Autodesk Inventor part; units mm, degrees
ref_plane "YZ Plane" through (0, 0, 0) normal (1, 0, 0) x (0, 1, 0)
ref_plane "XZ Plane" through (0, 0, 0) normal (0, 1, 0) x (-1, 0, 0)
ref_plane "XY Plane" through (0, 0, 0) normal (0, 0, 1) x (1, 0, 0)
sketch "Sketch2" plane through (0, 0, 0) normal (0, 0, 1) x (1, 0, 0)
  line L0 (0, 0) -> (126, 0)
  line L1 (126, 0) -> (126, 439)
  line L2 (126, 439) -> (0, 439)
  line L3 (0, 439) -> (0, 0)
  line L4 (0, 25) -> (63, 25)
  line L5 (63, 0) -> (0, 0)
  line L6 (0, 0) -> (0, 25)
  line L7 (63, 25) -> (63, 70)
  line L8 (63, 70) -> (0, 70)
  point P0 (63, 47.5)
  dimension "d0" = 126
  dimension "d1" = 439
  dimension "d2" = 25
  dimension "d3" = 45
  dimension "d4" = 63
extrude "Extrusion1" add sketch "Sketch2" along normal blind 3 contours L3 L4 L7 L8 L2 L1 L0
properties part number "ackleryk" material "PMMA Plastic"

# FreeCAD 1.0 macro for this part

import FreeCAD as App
import Part
import Sketcher
Q = App.Units.Quantity

doc = App.newDocument("Part")
body = doc.addObject("PartDesign::Body", "Body")

# Sketch on XY plane
sketch1 = body.newObject("Sketcher::SketchObject", "Sketch")
sketch1.AttachmentSupport = (doc.getObject("XY_Plane"), [""])
sketch1.MapMode = "FlatFace"
sketch1.addGeometry([
    Part.LineSegment(App.Vector(0, 25, 0), App.Vector(0, 0, 0)),  # 0
    Part.LineSegment(App.Vector(0, 0, 0), App.Vector(126, 0, 0)),  # 1
    Part.LineSegment(App.Vector(126, 0, 0), App.Vector(126, 439, 0)),  # 2
    Part.LineSegment(App.Vector(126, 439, 0), App.Vector(0, 439, 0)),  # 3
    Part.LineSegment(App.Vector(0, 439, 0), App.Vector(0, 70, 0)),  # 4
    Part.LineSegment(App.Vector(0, 70, 0), App.Vector(63, 70, 0)),  # 5
    Part.LineSegment(App.Vector(63, 70, 0), App.Vector(63, 25, 0)),  # 6
    Part.LineSegment(App.Vector(63, 25, 0), App.Vector(0, 25, 0)),  # 7
], False)
sketch1.addConstraint([
    Sketcher.Constraint("Coincident", 0, 2, 1, 1),
    Sketcher.Constraint("Coincident", 1, 2, 2, 1),
    Sketcher.Constraint("Coincident", 2, 2, 3, 1),
    Sketcher.Constraint("Coincident", 3, 2, 4, 1),
    Sketcher.Constraint("Coincident", 4, 2, 5, 1),
    Sketcher.Constraint("Coincident", 5, 2, 6, 1),
    Sketcher.Constraint("Coincident", 6, 2, 7, 1),
    Sketcher.Constraint("Coincident", 7, 2, 0, 1),
    Sketcher.Constraint("Vertical", 0),
    Sketcher.Constraint("Horizontal", 1),
    Sketcher.Constraint("Vertical", 2),
    Sketcher.Constraint("Horizontal", 3),
    Sketcher.Constraint("Vertical", 4),
    Sketcher.Constraint("Horizontal", 5),
    Sketcher.Constraint("Vertical", 6),
    Sketcher.Constraint("Horizontal", 7),
    Sketcher.Constraint("Coincident", 0, 2, -1, 1),
    Sketcher.Constraint("PointOnObject", 3, 2, -2),
    Sketcher.Constraint("DistanceX", 1, 1, 1, 2, Q("126 mm")),
    Sketcher.Constraint("DistanceX", 5, 1, 5, 2, Q("63 mm")),
    Sketcher.Constraint("DistanceY", 0, 2, 0, 1, Q("25 mm")),
    Sketcher.Constraint("DistanceY", 2, 1, 2, 2, Q("439 mm")),
    Sketcher.Constraint("DistanceY", 6, 2, 6, 1, Q("45 mm")),
])
pad1 = body.newObject("PartDesign::Pad", "Pad")
pad1.Profile = sketch1
pad1.Length = 3

doc.recompute()
